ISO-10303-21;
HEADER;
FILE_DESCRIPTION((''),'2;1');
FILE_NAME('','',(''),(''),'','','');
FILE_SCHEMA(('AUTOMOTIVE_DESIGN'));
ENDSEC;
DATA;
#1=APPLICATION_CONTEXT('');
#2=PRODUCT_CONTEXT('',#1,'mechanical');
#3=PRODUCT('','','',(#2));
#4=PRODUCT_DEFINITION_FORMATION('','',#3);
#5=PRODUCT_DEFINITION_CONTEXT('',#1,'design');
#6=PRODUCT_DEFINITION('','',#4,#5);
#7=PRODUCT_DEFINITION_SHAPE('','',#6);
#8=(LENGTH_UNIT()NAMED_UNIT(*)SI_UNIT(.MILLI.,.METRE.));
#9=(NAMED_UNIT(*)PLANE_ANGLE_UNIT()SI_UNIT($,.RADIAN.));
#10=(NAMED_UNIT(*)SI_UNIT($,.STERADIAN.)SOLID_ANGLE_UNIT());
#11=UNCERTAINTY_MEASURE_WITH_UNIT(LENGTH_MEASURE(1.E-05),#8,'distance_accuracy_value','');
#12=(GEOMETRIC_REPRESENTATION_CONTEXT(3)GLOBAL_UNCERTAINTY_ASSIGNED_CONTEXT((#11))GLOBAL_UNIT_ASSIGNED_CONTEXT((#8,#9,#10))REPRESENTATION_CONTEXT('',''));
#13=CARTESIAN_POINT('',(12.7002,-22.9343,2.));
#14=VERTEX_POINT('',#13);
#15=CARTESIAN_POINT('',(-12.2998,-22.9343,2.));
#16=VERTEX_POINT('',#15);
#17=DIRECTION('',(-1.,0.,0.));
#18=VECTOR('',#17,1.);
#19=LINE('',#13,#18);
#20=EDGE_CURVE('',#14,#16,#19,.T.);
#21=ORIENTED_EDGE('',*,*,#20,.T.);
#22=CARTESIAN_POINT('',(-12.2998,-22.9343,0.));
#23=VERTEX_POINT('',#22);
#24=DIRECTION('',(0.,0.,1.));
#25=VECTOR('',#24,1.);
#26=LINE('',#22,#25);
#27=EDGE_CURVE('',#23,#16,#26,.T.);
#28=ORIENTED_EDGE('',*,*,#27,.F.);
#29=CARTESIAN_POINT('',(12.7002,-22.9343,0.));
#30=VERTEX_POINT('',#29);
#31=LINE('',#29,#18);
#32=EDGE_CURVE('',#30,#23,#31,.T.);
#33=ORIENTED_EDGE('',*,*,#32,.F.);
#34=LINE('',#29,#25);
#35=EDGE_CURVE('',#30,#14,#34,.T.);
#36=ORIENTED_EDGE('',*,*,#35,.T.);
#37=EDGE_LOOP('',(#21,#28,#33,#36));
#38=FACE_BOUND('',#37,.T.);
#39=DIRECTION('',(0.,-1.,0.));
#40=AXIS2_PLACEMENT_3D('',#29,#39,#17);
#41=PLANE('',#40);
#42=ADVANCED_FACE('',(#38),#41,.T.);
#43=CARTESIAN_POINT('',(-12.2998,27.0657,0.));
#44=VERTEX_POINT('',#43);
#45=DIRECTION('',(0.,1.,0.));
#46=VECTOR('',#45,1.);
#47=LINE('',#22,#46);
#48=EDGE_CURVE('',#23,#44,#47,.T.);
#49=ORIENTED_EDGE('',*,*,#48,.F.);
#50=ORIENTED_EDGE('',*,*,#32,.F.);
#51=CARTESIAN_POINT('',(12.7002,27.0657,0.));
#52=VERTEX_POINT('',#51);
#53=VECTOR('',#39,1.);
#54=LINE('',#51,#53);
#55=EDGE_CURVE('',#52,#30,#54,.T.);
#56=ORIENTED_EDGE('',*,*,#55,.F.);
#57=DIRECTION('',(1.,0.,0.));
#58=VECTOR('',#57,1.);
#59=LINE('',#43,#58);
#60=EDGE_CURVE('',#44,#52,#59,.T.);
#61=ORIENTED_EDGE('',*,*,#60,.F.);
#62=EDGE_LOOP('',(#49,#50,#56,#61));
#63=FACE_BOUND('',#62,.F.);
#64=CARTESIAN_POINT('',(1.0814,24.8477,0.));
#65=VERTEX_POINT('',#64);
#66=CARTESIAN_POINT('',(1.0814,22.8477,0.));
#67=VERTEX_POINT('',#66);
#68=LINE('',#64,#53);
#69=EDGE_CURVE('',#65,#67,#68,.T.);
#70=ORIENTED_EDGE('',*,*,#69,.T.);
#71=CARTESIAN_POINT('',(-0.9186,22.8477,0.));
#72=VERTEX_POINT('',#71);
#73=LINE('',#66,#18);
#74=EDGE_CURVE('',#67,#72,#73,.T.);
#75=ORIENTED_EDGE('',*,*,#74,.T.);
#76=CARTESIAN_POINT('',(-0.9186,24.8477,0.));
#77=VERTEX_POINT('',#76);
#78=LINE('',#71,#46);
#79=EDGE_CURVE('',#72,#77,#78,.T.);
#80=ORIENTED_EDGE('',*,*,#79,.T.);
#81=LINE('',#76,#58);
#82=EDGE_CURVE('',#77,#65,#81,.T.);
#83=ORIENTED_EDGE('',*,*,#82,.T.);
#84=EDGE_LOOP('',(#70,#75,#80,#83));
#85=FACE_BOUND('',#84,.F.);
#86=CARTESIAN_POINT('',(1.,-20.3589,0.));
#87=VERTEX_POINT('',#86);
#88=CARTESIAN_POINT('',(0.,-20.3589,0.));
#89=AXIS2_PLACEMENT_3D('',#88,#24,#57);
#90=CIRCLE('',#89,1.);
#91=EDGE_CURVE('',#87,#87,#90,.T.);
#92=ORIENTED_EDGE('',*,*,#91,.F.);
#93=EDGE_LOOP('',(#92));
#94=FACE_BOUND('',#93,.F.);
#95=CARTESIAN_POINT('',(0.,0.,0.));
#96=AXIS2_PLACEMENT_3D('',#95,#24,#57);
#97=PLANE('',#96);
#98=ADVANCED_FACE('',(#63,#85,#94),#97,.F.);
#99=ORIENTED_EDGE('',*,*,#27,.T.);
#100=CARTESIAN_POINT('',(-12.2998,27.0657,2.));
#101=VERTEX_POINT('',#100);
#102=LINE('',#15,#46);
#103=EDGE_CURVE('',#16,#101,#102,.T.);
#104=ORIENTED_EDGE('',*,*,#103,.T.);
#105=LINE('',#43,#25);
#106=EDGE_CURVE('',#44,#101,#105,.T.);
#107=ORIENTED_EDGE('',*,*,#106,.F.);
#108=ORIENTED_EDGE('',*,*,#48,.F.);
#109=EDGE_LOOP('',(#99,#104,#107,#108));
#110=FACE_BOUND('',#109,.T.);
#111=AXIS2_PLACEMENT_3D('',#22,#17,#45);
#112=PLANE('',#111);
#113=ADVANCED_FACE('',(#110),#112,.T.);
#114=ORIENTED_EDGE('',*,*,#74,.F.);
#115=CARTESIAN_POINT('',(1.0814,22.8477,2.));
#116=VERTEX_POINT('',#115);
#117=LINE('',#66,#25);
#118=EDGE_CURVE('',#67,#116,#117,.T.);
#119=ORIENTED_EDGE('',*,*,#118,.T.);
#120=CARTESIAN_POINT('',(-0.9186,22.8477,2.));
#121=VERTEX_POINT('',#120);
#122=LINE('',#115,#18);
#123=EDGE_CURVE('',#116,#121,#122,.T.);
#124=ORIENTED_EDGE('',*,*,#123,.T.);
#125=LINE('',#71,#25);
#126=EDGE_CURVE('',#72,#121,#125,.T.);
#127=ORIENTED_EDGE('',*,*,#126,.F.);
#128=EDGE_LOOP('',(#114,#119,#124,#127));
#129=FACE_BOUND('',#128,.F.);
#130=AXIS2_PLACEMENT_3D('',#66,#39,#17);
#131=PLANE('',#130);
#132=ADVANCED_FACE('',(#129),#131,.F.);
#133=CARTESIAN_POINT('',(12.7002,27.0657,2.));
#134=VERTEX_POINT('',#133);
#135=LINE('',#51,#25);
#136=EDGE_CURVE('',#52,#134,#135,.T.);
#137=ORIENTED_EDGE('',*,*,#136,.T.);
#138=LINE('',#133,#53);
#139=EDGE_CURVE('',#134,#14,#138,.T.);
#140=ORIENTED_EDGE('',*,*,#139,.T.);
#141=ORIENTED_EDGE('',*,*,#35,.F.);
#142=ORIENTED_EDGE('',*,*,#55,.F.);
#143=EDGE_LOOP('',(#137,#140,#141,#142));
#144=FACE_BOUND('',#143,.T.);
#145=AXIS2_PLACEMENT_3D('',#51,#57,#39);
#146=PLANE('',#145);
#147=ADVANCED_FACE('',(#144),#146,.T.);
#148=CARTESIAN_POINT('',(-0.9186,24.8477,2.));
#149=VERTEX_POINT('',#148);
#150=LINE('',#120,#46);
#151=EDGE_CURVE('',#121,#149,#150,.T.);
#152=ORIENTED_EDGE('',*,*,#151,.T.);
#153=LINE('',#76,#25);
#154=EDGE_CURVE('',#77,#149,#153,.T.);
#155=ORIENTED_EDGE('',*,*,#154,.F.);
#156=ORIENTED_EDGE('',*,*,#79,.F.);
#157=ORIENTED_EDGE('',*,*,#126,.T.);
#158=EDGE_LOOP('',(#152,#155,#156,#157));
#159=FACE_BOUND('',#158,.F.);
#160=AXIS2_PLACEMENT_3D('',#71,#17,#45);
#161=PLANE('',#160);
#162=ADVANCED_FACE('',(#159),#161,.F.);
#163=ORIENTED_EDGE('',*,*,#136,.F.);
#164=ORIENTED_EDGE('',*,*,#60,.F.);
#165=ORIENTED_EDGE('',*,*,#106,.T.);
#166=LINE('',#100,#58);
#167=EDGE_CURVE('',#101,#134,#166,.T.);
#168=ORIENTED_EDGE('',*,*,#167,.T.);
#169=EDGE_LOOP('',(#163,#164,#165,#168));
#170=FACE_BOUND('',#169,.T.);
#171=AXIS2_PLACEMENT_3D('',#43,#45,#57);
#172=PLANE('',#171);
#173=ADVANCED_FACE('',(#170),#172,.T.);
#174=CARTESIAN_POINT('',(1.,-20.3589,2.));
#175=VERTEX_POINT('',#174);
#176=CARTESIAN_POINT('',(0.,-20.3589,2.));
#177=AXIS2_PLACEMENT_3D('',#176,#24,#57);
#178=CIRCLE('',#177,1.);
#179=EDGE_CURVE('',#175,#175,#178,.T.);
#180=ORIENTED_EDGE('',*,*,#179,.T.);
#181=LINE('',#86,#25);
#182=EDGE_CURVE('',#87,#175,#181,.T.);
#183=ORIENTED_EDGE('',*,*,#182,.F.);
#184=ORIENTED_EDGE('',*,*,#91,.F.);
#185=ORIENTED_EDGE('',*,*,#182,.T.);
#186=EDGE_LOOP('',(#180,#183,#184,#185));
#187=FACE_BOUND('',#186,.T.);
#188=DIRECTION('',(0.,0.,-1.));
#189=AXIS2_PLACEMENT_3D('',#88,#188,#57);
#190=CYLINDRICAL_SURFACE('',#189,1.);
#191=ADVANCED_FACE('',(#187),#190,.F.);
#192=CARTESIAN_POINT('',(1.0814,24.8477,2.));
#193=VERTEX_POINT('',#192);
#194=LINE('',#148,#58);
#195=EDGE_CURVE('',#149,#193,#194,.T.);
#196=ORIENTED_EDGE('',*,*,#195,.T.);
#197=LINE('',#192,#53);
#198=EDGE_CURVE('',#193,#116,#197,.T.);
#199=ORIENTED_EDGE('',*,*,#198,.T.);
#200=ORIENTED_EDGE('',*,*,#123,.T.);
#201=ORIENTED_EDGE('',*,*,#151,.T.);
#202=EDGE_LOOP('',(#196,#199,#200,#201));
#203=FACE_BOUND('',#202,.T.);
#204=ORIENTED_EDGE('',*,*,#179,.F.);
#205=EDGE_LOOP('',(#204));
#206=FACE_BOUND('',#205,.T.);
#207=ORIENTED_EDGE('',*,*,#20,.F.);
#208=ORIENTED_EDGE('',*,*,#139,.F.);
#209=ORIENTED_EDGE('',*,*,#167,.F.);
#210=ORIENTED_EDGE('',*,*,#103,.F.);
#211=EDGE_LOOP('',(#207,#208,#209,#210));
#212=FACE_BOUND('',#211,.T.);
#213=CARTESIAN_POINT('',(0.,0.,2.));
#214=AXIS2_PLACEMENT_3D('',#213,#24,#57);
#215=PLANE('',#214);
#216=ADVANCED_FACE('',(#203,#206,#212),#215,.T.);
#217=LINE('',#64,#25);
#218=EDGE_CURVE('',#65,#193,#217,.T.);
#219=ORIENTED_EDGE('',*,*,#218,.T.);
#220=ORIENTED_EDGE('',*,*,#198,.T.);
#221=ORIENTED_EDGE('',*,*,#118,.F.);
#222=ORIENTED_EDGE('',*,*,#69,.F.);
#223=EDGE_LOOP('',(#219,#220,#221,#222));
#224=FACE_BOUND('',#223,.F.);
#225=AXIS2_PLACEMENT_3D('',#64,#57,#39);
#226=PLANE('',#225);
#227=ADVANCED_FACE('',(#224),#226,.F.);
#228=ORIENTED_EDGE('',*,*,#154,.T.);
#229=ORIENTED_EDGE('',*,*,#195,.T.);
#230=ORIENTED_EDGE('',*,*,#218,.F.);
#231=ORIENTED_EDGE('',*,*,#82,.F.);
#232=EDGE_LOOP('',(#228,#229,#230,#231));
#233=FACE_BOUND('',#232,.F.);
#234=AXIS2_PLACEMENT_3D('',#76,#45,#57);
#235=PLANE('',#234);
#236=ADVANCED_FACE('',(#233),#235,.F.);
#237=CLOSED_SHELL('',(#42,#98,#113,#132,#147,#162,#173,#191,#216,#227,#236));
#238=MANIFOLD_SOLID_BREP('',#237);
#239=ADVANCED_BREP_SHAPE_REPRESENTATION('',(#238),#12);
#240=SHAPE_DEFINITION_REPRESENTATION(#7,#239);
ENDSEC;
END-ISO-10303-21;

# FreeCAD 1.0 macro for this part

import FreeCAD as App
import Part
import Sketcher

V = App.Vector


def add_polygon(sketch, points):
    """Adds a closed chain of lines whose ends are joined by coincident constraints."""
    first, n = sketch.GeometryCount, len(points)
    for a, b in zip(points, points[1:] + points[:1]):
        sketch.addGeometry(Part.LineSegment(App.Vector(*a, 0), App.Vector(*b, 0)), False)
    for i in range(n):
        sketch.addConstraint(Sketcher.Constraint("Coincident", first + i, 2, first + (i + 1) % n, 1))

doc = App.newDocument("Part")
body = doc.addObject("PartDesign::Body", "Body")

# Sketch on XY plane
sketch1 = body.newObject("Sketcher::SketchObject", "Sketch")
sketch1.AttachmentSupport = (doc.getObject("XY_Plane"), [""])
sketch1.MapMode = "FlatFace"
add_polygon(sketch1, [(12.7, 27.1), (-12.3, 27.1), (-12.3, -22.9), (12.7, -22.9)])  # lines 0-3
sketch1.addGeometry(Part.Circle(V(0, -20.4, 0), V(0, 0, 1), 1), False)  # 4
add_polygon(sketch1, [(-0.9, 22.8), (-0.9, 24.8), (1.1, 24.8), (1.1, 22.8)])  # lines 5-8
sketch1.addConstraint([
    Sketcher.Constraint("Horizontal", 0),
    Sketcher.Constraint("Vertical", 1),
    Sketcher.Constraint("Horizontal", 2),
    Sketcher.Constraint("Vertical", 3),
    Sketcher.Constraint("Vertical", 5),
    Sketcher.Constraint("Horizontal", 6),
    Sketcher.Constraint("Vertical", 7),
    Sketcher.Constraint("Horizontal", 8),
    Sketcher.Constraint("PointOnObject", 4, 3, -2),
    Sketcher.Constraint("Equal", 8, 5),
    Sketcher.Constraint("Diameter", 4, 2.0),
    Sketcher.Constraint("DistanceX", 0, 2, 0, 1, 25.0),
    Sketcher.Constraint("DistanceX", 6, 1, 6, 2, 2.0),
    Sketcher.Constraint("DistanceY", 1, 2, 1, 1, 50.0),
    Sketcher.Constraint("DistanceY", 4, 3, -1, 1, 20.359),
    Sketcher.Constraint("DistanceY", 5, 2, 0, 2, 2.218),
    Sketcher.Constraint("DistanceX", 0, 2, -1, 1, 12.2998),
    Sketcher.Constraint("DistanceY", -1, 1, 0, 2, 27.0657),
    Sketcher.Constraint("DistanceX", 5, 2, -1, 1, 0.9186),
])
pad1 = body.newObject("PartDesign::Pad", "Pad")
pad1.Profile = sketch1
pad1.Length = 2

doc.recompute()
